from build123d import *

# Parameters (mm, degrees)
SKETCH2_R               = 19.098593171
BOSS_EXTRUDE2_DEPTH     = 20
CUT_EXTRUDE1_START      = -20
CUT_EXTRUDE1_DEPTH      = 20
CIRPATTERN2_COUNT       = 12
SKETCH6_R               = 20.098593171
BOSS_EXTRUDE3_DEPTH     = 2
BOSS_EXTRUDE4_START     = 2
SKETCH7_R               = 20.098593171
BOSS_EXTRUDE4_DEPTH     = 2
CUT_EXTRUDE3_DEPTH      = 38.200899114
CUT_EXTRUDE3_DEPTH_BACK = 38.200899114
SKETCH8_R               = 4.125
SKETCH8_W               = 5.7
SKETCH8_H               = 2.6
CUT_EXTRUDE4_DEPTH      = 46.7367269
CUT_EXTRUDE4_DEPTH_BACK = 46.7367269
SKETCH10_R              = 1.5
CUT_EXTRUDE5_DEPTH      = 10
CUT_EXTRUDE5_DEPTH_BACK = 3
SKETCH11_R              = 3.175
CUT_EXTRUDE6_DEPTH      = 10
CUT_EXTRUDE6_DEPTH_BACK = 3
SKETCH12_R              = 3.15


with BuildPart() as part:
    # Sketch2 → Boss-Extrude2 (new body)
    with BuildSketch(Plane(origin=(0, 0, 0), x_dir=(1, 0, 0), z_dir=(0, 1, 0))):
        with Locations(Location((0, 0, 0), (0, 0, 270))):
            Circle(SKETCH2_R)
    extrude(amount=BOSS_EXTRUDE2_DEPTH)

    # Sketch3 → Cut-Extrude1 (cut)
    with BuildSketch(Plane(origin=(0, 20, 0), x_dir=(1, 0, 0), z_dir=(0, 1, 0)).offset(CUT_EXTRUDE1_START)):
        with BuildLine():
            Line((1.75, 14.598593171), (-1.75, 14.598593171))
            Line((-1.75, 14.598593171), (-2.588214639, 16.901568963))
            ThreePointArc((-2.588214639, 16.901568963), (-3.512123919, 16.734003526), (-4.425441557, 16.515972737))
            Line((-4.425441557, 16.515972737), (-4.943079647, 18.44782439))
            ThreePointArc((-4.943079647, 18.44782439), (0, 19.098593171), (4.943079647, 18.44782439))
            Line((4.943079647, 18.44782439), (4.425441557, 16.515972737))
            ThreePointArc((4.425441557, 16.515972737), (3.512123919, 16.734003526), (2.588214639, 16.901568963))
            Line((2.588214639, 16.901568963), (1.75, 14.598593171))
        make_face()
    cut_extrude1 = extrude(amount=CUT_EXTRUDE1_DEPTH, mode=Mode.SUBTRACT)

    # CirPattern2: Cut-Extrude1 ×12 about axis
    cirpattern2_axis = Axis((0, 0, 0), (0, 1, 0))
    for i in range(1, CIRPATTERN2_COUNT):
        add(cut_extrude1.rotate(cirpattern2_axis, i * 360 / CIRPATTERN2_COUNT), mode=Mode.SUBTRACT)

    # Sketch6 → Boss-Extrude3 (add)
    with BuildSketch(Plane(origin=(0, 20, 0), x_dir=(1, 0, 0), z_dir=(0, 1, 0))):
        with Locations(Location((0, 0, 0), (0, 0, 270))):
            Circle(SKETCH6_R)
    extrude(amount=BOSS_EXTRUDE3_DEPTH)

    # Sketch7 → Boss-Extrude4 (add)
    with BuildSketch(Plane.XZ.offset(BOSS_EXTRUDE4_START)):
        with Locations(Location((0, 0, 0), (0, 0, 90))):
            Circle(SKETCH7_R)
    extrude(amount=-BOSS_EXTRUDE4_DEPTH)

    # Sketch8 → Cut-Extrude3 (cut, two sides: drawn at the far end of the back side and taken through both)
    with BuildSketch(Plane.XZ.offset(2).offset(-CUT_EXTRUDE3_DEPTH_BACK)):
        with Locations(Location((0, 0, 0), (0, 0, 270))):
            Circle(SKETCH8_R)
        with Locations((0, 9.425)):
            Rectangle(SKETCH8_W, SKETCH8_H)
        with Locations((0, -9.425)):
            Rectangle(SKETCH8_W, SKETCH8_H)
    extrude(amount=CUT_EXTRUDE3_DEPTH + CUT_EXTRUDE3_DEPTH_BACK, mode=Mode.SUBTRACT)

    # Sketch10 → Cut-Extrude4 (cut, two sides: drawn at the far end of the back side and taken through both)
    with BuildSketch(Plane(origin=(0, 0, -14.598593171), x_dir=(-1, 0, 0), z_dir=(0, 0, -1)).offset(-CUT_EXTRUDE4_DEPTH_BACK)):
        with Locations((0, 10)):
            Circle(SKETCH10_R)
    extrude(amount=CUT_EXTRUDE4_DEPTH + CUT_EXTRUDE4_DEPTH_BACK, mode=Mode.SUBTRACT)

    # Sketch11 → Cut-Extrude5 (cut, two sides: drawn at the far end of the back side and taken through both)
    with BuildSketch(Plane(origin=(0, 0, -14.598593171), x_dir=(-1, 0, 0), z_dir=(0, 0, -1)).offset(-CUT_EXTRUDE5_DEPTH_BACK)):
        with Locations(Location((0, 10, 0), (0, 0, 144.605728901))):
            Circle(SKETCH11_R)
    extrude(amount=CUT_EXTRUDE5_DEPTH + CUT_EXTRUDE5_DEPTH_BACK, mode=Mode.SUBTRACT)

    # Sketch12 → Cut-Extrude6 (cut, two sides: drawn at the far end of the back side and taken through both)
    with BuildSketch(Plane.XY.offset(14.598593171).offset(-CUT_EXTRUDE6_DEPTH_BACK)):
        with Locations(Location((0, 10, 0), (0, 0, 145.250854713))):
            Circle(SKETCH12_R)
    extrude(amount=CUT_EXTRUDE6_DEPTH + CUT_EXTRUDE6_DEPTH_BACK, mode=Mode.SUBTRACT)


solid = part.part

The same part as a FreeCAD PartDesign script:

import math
import FreeCAD as App
import Part
import Sketcher

V = App.Vector
Q = App.Units.Quantity


def add_polygon(sketch, points):
    """Adds a closed chain of lines whose ends are joined by coincident constraints."""
    first, n = sketch.GeometryCount, len(points)
    for a, b in zip(points, points[1:] + points[:1]):
        sketch.addGeometry(Part.LineSegment(App.Vector(*a, 0), App.Vector(*b, 0)), False)
    for i in range(n):
        sketch.addConstraint(Sketcher.Constraint("Coincident", first + i, 2, first + (i + 1) % n, 1))

doc = App.newDocument("Part")
body = doc.addObject("PartDesign::Body", "Body")

sketch1 = body.newObject("Sketcher::SketchObject", "Sketch")
sketch1.AttachmentSupport = (doc.getObject("XZ_Plane"), [""])
sketch1.MapMode = "FlatFace"
sketch1.addGeometry(Part.Circle(V(0, 0, 0), V(0, 0, 1), 19.098593), False)
sketch1.addConstraint([
    Sketcher.Constraint("Coincident", 0, 3, -1, 1),
    Sketcher.Constraint("Diameter", 0, Q("38.197186 mm")),
])
pad1 = body.newObject("PartDesign::Pad", "Pad")
pad1.Profile = sketch1
pad1.Length = 20
pad1.Reversed = True

sketch2 = body.newObject("Sketcher::SketchObject", "Sketch001")
sketch2.AttachmentSupport = (doc.getObject("XZ_Plane"), [""])
sketch2.MapMode = "FlatFace"
sketch2.addGeometry([
    Part.LineSegment(V(-1.75, -14.598593, 0), V(1.75, -14.598593, 0)),
    Part.LineSegment(V(1.75, -14.598593, 0), V(2.588215, -16.901569, 0)),
    Part.ArcOfCircle(Part.Circle(V(0, 0, 0), V(0, 0, 1), 17.098593), math.radians(-81.29367), math.radians(-75)),
    Part.LineSegment(V(4.425442, -16.515973, 0), V(4.94308, -18.447824, 0)),
    Part.ArcOfCircle(Part.Circle(V(0, 0, 0), V(0, 0, 1), 19.098593), math.radians(-105), math.radians(-75)),
    Part.LineSegment(V(-4.94308, -18.447824, 0), V(-4.425442, -16.515973, 0)),
    Part.ArcOfCircle(Part.Circle(V(0, 0, 0), V(0, 0, 1), 17.098593), math.radians(-105), math.radians(-98.70633)),
    Part.LineSegment(V(-2.588215, -16.901569, 0), V(-1.75, -14.598593, 0)),
], False)
sketch2.addConstraint([
    Sketcher.Constraint("Coincident", 0, 2, 1, 1),
    Sketcher.Constraint("Coincident", 1, 2, 2, 1),
    Sketcher.Constraint("Coincident", 2, 2, 3, 1),
    Sketcher.Constraint("Coincident", 3, 2, 4, 2),
    Sketcher.Constraint("Coincident", 4, 1, 5, 1),
    Sketcher.Constraint("Coincident", 5, 2, 6, 1),
    Sketcher.Constraint("Coincident", 6, 2, 7, 1),
    Sketcher.Constraint("Coincident", 7, 2, 0, 1),
    Sketcher.Constraint("Horizontal", 0),
    Sketcher.Constraint("Coincident", 2, 3, -1, 1),
    Sketcher.Constraint("Coincident", 4, 3, -1, 1),
    Sketcher.Constraint("Coincident", 6, 3, -1, 1),
    Sketcher.Constraint("Equal", 2, 6),
    Sketcher.Constraint("Horizontal", 3, 2, 4, 1),
    Sketcher.Constraint("Horizontal", 2, 2, 5, 2),
    Sketcher.Constraint("Horizontal", 1, 2, 6, 2),
    Sketcher.Constraint("Equal", 1, 7),
    Sketcher.Constraint("Angle", 1, Q("-70 deg")),
    Sketcher.Constraint("Angle", 3, Q("-75 deg")),
    Sketcher.Constraint("Distance", 3, Q("2 mm")),
    Sketcher.Constraint("DistanceX", 0, 1, 0, 2, Q("3.5 mm")),
    Sketcher.Constraint("Radius", 2, Q("17.098593 mm")),
    Sketcher.Constraint("DistanceY", 1, 2, -1, 1, Q("16.901569 mm")),
    Sketcher.Constraint("DistanceX", -1, 1, 2, 2, Q("4.425442 mm")),
])
pocket1 = body.newObject("PartDesign::Pocket", "Pocket")
pocket1.Profile = sketch2
pocket1.Length = 20
doc.recompute()

polarpattern = body.newObject("PartDesign::PolarPattern", "PolarPattern")
polarpattern.Originals = [pocket1]
polarpattern.Axis = (doc.getObject("Y_Axis"), [""])
polarpattern.Angle = 360
polarpattern.Occurrences = 12
body.Tip = polarpattern

sketch3 = body.newObject("Sketcher::SketchObject", "Sketch002")
sketch3.AttachmentSupport = (doc.getObject("XZ_Plane"), [""])
sketch3.MapMode = "FlatFace"
sketch3.AttachmentOffset = App.Placement(V(0, 0, -20), App.Rotation())
sketch3.addGeometry(Part.Circle(V(0, 0, 0), V(0, 0, 1), 20.098593), False)
sketch3.addConstraint([
    Sketcher.Constraint("Coincident", 0, 3, -1, 1),
    Sketcher.Constraint("Diameter", 0, Q("40.197186 mm")),
])
pad2 = body.newObject("PartDesign::Pad", "Pad001")
pad2.Profile = sketch3
pad2.Length = 2
pad2.Reversed = True

sketch4 = body.newObject("Sketcher::SketchObject", "Sketch003")
sketch4.AttachmentSupport = (doc.getObject("XZ_Plane"), [""])
sketch4.MapMode = "FlatFace"
sketch4.AttachmentOffset = App.Placement(V(0, 0, 2), App.Rotation())
sketch4.addGeometry(Part.Circle(V(0, 0, 0), V(0, 0, 1), 20.098593), False)
sketch4.addConstraint([
    Sketcher.Constraint("Coincident", 0, 3, -1, 1),
    Sketcher.Constraint("Diameter", 0, Q("40.197186 mm")),
])
pad3 = body.newObject("PartDesign::Pad", "Pad002")
pad3.Profile = sketch4
pad3.Length = 2
pad3.Reversed = True

sketch5 = body.newObject("Sketcher::SketchObject", "Sketch004")
sketch5.AttachmentSupport = (doc.getObject("XZ_Plane"), [""])
sketch5.MapMode = "FlatFace"
sketch5.AttachmentOffset = App.Placement(V(0, 0, 2), App.Rotation())
sketch5.addGeometry(Part.Circle(V(0, 0, 0), V(0, 0, 1), 4.125), False)
add_polygon(sketch5, [(-2.85, 10.725), (-2.85, 8.125), (2.85, 8.125), (2.85, 10.725)])
add_polygon(sketch5, [(-2.85, -8.125), (-2.85, -10.725), (2.85, -10.725), (2.85, -8.125)])
sketch5.addConstraint([
    Sketcher.Constraint("Vertical", 1),
    Sketcher.Constraint("Horizontal", 2),
    Sketcher.Constraint("Vertical", 3),
    Sketcher.Constraint("Horizontal", 4),
    Sketcher.Constraint("Vertical", 5),
    Sketcher.Constraint("Horizontal", 6),
    Sketcher.Constraint("Vertical", 7),
    Sketcher.Constraint("Horizontal", 8),
    Sketcher.Constraint("Coincident", 0, 3, -1, 1),
    Sketcher.Constraint("Symmetric", 3, 2, 5, 2, -1, 1),
    Sketcher.Constraint("Symmetric", 1, 2, 7, 2, -1, 1),
    Sketcher.Constraint("Vertical", 4, 2, 5, 2),
    Sketcher.Constraint("Diameter", 0, Q("8.25 mm")),
    Sketcher.Constraint("DistanceX", 2, 1, 2, 2, Q("5.7 mm")),
    Sketcher.Constraint("DistanceY", 1, 2, 1, 1, Q("2.6 mm")),
    Sketcher.Constraint("DistanceY", 5, 2, 1, 2, Q("18.85 mm")),
])
pocket2 = body.newObject("PartDesign::Pocket", "Pocket001")
pocket2.Profile = sketch5
pocket2.Type = "ThroughAll"
pocket2.Midplane = True

sketch6 = body.newObject("Sketcher::SketchObject", "Sketch005")
sketch6.AttachmentSupport = (doc.getObject("XY_Plane"), [""])
sketch6.MapMode = "FlatFace"
sketch6.AttachmentOffset = App.Placement(V(0, 0, -14.598593), App.Rotation())
sketch6.addGeometry(Part.Circle(V(0, 10, 0), V(0, 0, 1), 1.5), False)
sketch6.addConstraint([
    Sketcher.Constraint("PointOnObject", 0, 3, -2),
    Sketcher.Constraint("Diameter", 0, Q("3 mm")),
    Sketcher.Constraint("DistanceY", -1, 1, 0, 3, Q("10 mm")),
])
pocket3 = body.newObject("PartDesign::Pocket", "Pocket002")
pocket3.Profile = sketch6
pocket3.Type = "ThroughAll"
pocket3.Midplane = True

sketch7 = body.newObject("Sketcher::SketchObject", "Sketch006")
sketch7.AttachmentSupport = (doc.getObject("XY_Plane"), [""])
sketch7.MapMode = "FlatFace"
sketch7.AttachmentOffset = App.Placement(V(0, 0, -14.598593), App.Rotation())
sketch7.addGeometry(Part.Circle(V(0, 10, 0), V(0, 0, 1), 3.175), False)
sketch7.addConstraint([
    Sketcher.Constraint("PointOnObject", 0, 3, -2),
    Sketcher.Constraint("Diameter", 0, Q("6.35 mm")),
    Sketcher.Constraint("DistanceY", -1, 1, 0, 3, Q("10 mm")),
])
pocket4 = body.newObject("PartDesign::Pocket", "Pocket003")
pocket4.Profile = sketch7
pocket4.Type = "TwoLengths"
pocket4.Length = 10
pocket4.Length2 = 3

sketch8 = body.newObject("Sketcher::SketchObject", "Sketch007")
sketch8.AttachmentSupport = (doc.getObject("XY_Plane"), [""])
sketch8.MapMode = "FlatFace"
sketch8.AttachmentOffset = App.Placement(V(0, 0, 14.598593), App.Rotation())
sketch8.addGeometry(Part.Circle(V(0, 10, 0), V(0, 0, 1), 3.15), False)
sketch8.addConstraint([
    Sketcher.Constraint("PointOnObject", 0, 3, -2),
    Sketcher.Constraint("Diameter", 0, Q("6.3 mm")),
    Sketcher.Constraint("DistanceY", -1, 1, 0, 3, Q("10 mm")),
])
pocket5 = body.newObject("PartDesign::Pocket", "Pocket004")
pocket5.Profile = sketch8
pocket5.Type = "TwoLengths"
pocket5.Length = 10
pocket5.Length2 = 3
pocket5.Reversed = True

doc.recompute()
